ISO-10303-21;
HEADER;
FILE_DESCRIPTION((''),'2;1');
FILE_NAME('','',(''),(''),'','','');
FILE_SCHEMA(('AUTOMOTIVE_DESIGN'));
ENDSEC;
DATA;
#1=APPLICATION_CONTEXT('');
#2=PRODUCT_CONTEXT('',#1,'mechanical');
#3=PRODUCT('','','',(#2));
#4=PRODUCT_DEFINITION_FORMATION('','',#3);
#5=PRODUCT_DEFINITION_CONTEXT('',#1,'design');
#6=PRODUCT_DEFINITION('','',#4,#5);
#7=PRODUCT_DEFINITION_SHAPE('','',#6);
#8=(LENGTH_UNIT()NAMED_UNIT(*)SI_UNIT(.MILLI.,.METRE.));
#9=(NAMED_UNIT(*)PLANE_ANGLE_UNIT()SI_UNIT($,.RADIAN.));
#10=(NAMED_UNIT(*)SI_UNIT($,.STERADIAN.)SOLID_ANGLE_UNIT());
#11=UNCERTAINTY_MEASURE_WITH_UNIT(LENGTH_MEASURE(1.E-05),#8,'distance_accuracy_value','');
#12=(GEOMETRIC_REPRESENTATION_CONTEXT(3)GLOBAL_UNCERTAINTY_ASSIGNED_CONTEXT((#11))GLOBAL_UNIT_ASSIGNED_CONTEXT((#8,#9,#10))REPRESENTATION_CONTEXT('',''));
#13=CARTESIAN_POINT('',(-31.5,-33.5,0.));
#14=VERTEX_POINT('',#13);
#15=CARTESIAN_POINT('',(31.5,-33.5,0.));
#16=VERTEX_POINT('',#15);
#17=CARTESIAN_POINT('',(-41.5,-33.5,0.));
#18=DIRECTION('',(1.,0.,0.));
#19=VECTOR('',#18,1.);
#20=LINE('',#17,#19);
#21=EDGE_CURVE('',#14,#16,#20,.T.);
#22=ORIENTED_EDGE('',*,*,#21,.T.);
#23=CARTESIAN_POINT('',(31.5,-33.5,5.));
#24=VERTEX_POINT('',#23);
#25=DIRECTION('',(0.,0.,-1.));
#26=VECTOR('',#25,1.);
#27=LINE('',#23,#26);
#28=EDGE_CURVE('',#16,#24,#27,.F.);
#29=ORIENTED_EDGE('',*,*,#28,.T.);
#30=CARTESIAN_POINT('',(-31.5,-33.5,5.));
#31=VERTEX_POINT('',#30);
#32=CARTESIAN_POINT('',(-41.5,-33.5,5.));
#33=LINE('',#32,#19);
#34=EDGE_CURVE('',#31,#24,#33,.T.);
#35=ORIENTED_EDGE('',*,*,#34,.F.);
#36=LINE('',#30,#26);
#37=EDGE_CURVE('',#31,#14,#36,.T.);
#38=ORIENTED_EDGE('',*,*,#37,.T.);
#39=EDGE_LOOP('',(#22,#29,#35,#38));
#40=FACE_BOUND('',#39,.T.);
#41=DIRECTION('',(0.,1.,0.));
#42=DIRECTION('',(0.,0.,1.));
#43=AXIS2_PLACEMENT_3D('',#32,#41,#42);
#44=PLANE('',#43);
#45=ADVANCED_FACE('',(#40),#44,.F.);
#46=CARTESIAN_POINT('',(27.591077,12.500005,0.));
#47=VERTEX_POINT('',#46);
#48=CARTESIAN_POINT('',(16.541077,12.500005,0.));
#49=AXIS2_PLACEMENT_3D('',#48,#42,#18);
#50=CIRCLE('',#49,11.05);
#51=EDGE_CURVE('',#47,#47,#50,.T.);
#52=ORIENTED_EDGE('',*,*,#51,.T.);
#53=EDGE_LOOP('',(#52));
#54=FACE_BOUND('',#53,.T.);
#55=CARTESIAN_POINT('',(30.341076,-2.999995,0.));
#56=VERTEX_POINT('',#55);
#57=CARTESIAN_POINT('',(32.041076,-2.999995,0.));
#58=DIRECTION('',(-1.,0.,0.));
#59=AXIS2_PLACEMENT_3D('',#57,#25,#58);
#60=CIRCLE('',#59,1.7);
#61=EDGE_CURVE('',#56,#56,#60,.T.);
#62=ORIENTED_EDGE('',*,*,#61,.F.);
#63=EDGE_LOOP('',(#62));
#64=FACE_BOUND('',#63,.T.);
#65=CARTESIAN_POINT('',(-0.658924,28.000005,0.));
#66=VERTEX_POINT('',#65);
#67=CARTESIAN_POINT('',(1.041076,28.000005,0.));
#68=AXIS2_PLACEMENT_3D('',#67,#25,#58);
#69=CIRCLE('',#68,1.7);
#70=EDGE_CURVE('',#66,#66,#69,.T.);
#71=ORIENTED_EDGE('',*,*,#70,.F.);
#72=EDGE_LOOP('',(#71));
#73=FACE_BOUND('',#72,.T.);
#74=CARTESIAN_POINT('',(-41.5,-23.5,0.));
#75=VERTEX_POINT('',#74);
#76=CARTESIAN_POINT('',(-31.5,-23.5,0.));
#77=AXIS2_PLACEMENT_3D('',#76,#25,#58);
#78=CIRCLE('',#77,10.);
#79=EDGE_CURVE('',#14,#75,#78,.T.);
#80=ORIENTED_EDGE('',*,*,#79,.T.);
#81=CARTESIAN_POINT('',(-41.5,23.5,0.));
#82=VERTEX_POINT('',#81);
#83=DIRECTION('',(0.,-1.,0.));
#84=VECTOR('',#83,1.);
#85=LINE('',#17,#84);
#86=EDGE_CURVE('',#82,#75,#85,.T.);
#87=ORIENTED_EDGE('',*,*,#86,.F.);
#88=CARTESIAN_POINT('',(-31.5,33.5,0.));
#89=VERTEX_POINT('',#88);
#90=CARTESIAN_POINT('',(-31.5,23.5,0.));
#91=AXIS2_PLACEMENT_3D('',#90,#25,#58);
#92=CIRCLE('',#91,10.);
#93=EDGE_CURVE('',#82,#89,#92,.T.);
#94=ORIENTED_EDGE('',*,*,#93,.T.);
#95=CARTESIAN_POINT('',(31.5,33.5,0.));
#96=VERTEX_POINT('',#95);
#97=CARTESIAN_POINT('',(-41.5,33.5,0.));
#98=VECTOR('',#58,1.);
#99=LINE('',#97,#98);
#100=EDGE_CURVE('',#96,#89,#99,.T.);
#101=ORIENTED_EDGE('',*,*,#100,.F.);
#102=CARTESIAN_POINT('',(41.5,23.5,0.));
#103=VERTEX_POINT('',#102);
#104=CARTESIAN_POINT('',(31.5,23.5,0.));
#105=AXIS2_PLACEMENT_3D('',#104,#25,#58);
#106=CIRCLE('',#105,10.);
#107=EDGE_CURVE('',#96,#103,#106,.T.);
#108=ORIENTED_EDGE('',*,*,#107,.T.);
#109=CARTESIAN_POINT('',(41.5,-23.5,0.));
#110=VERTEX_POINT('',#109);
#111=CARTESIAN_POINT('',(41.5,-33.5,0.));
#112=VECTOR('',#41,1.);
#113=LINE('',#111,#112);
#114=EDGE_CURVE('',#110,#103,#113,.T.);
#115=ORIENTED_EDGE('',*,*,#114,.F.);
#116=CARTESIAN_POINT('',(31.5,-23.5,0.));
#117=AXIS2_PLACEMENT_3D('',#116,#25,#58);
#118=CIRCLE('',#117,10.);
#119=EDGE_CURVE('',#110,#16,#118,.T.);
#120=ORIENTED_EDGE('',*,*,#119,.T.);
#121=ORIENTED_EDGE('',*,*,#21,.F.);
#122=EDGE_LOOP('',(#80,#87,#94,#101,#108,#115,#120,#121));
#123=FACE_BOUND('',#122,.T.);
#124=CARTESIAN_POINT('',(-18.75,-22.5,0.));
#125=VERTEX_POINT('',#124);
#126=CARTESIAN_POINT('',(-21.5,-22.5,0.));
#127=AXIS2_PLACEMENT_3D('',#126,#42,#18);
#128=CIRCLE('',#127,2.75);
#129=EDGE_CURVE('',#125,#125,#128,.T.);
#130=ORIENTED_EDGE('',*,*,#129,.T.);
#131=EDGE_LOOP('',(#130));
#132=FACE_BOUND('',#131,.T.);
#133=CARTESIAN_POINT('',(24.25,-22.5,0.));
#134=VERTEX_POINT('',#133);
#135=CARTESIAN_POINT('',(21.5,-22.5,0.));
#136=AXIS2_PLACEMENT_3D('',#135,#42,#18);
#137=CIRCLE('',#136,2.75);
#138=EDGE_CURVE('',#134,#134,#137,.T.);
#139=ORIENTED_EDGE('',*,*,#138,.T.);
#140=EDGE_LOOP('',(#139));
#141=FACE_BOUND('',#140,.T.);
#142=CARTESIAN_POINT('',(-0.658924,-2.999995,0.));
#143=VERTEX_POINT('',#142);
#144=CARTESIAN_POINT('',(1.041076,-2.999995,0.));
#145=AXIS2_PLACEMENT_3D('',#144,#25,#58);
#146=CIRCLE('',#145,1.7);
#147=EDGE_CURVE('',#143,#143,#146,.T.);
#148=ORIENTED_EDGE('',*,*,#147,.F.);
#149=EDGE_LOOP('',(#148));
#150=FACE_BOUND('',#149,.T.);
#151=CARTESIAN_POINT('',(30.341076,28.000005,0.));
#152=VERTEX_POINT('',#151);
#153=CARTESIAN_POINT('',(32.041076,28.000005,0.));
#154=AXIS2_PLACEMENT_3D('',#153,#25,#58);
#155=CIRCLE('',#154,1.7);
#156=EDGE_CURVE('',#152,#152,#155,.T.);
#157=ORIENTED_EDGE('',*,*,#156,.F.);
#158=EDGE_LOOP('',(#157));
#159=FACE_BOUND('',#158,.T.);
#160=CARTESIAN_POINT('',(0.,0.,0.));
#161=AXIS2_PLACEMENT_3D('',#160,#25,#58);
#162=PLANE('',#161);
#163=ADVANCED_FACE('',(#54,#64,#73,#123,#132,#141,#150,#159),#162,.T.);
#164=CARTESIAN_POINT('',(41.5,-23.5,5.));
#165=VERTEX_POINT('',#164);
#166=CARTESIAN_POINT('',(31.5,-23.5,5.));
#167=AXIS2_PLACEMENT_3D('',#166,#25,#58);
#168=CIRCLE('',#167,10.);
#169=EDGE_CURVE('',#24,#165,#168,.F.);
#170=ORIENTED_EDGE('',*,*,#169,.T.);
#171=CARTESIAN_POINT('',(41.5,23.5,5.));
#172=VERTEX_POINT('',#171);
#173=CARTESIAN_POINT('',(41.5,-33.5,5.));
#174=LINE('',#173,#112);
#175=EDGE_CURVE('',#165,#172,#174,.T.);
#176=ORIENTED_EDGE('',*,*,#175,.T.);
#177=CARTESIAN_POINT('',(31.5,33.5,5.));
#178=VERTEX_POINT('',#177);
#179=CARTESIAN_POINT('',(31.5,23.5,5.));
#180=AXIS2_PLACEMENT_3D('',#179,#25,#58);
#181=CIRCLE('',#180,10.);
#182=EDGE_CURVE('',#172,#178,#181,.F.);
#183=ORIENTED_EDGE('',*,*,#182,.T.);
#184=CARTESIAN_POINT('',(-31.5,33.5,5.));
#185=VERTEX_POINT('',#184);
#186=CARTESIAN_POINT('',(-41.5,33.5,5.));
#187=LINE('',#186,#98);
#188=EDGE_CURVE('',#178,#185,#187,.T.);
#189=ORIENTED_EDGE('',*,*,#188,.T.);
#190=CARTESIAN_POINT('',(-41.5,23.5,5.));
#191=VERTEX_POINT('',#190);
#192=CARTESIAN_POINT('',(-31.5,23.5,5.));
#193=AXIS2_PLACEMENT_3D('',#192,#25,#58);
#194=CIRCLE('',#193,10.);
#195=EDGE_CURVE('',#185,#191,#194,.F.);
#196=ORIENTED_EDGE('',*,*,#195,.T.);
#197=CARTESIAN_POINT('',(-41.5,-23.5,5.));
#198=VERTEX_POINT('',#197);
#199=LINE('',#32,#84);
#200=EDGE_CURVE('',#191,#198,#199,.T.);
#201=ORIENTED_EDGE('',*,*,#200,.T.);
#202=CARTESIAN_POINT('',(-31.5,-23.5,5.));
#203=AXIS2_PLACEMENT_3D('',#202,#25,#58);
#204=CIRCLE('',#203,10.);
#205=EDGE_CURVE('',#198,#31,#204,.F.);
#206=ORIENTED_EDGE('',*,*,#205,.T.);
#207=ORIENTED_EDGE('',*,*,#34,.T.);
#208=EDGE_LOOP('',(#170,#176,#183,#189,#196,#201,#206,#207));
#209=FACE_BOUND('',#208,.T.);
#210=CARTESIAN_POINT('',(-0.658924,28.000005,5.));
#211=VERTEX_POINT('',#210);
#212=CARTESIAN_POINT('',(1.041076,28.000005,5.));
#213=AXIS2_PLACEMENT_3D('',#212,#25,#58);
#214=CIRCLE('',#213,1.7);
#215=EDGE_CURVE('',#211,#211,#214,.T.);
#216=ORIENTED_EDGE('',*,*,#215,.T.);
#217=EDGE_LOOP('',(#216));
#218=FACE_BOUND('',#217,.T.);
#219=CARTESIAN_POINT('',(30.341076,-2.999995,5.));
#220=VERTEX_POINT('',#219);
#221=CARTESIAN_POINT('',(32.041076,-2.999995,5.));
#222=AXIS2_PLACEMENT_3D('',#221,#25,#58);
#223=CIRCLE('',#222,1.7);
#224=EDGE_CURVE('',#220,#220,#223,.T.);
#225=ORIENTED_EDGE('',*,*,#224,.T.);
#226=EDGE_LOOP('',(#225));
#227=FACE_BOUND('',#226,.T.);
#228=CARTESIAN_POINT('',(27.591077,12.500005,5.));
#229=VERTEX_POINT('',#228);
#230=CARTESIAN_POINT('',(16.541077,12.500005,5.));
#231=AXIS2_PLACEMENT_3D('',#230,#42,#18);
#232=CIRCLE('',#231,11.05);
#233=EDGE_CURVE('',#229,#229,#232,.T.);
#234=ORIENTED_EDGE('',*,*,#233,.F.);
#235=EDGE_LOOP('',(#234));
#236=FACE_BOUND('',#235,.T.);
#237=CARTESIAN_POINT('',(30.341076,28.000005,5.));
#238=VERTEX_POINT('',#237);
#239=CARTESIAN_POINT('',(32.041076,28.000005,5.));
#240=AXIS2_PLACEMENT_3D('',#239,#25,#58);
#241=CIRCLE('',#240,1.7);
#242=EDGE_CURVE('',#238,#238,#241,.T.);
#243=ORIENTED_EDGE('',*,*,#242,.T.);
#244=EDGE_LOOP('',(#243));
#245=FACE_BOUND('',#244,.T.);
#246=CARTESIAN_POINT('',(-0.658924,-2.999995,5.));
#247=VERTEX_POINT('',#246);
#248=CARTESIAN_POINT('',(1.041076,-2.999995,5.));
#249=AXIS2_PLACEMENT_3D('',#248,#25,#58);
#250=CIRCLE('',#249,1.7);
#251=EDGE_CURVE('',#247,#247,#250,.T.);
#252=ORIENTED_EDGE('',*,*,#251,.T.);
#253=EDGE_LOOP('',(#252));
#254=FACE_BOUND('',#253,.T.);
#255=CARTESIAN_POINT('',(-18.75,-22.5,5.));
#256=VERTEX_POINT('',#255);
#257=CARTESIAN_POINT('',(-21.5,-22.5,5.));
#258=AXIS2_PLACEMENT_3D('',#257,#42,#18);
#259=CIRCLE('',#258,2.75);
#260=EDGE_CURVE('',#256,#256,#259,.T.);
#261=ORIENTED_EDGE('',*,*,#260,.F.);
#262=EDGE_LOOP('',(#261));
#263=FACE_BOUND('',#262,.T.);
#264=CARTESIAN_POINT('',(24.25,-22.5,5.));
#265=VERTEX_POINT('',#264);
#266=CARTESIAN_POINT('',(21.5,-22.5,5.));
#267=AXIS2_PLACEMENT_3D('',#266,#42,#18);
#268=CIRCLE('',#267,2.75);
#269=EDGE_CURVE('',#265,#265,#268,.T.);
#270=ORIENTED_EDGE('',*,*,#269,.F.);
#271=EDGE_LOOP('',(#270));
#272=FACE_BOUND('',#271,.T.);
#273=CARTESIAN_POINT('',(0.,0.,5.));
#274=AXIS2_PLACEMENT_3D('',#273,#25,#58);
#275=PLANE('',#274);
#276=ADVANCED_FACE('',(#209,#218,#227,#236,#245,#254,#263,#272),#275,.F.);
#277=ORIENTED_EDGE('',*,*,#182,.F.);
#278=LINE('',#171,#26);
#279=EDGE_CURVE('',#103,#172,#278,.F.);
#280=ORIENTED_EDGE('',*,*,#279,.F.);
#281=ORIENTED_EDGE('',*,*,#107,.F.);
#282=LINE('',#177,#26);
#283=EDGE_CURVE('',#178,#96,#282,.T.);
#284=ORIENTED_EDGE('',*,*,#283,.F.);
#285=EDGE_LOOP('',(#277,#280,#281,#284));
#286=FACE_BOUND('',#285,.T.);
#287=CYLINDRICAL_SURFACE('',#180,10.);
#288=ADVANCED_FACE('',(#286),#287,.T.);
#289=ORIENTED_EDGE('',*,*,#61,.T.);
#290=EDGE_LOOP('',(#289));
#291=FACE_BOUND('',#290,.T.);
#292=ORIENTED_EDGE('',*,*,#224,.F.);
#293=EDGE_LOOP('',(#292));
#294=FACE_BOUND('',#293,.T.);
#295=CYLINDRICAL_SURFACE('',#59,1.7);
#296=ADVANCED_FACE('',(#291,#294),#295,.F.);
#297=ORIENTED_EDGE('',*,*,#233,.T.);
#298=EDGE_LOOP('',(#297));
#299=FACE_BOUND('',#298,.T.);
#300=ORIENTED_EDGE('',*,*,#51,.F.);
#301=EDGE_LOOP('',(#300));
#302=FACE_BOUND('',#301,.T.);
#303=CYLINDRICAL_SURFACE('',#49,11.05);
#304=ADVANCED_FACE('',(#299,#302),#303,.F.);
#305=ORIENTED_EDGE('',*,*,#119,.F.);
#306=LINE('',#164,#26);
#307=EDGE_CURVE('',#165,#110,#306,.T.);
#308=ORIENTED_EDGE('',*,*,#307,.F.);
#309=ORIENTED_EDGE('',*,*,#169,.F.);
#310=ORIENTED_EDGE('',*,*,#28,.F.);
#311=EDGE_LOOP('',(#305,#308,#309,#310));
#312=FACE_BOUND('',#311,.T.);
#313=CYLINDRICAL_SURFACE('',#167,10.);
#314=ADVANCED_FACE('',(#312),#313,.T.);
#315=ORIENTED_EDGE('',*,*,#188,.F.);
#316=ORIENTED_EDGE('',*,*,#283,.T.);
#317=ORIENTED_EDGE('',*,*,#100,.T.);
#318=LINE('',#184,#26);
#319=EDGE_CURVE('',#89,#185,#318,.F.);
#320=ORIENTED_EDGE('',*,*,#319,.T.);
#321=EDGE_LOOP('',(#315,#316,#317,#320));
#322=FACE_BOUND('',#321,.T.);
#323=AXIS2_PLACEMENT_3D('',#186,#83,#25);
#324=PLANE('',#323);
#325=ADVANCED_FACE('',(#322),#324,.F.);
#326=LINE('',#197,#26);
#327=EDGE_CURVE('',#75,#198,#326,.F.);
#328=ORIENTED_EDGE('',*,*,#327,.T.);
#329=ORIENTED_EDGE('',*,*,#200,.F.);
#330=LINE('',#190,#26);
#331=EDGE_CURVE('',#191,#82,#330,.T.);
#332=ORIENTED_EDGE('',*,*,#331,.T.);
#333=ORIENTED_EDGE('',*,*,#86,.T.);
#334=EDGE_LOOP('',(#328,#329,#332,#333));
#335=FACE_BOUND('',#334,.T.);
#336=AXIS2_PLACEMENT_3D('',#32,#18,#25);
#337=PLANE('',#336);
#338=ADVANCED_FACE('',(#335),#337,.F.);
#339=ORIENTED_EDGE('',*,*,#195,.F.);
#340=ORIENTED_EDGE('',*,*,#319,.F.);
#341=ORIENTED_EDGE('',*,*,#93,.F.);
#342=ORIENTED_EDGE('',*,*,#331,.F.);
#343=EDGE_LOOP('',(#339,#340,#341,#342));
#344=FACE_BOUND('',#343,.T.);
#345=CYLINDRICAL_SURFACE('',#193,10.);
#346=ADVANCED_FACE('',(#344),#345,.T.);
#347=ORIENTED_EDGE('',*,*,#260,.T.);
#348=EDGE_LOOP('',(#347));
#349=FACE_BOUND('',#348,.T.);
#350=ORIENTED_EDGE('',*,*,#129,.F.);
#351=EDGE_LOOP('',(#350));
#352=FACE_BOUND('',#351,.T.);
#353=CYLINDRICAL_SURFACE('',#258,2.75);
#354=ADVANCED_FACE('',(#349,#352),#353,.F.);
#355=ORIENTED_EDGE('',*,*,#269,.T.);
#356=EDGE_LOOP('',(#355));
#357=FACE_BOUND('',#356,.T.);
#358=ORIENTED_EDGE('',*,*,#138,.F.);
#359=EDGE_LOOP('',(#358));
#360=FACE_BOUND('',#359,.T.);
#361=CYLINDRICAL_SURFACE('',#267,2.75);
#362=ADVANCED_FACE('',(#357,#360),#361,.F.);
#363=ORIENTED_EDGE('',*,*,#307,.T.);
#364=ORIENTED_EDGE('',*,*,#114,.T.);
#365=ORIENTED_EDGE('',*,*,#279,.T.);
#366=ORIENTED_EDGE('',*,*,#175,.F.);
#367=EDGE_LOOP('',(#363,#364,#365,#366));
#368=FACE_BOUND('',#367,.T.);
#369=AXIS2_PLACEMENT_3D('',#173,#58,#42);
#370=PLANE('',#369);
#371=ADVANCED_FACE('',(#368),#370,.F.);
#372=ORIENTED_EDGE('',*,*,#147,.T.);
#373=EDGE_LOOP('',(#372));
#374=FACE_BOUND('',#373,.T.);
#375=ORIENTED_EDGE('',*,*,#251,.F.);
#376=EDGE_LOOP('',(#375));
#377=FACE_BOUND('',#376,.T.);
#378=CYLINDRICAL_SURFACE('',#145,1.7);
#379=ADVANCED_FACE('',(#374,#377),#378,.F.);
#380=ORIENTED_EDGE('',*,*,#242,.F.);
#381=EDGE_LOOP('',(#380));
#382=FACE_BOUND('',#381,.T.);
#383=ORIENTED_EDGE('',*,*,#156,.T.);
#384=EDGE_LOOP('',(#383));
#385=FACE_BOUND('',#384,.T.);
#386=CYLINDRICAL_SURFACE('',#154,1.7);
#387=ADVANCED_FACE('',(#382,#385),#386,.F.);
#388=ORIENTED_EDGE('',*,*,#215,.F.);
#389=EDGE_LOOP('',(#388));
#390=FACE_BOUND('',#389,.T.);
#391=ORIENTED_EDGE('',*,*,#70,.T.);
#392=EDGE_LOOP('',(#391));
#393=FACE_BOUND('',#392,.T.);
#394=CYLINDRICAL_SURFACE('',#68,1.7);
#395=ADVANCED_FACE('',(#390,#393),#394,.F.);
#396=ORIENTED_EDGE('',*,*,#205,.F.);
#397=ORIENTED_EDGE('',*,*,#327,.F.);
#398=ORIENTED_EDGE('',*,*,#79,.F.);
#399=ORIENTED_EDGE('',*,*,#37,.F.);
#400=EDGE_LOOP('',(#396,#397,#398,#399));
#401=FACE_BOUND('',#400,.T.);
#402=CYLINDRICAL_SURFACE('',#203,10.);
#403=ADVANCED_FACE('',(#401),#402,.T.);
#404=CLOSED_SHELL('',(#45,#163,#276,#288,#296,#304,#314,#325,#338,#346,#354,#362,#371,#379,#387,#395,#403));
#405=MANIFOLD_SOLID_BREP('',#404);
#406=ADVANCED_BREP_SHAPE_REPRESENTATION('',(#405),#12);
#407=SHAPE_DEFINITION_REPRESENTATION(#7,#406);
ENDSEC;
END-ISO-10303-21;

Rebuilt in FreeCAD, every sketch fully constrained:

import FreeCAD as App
import Part
import Sketcher

V = App.Vector
Q = App.Units.Quantity


def edges_at(feature, points):
    """Names of the edges that pass closest to the given points."""
    edges = feature.Shape.Edges
    near = lambda p: min(range(len(edges)), key=lambda i: edges[i].distToShape(Part.Vertex(*p))[0])
    return sorted({f"Edge{near(p) + 1}" for p in points})

doc = App.newDocument("Part")
params = doc.addObject("Spreadsheet::Sheet", "Params")
for row, (alias, value) in enumerate([
    ("sketch1_width", "83 mm"),
    ("sketch1_height", "67 mm"),
    ("pad1_length", "5 mm"),
    ("sketch2_diameter", "5.5 mm"),
    ("hole_diameter", "5.5 mm"),
    ("sketch3_diameter", "3.4 mm"),
    ("hole2_diameter", "3.4 mm"),
    ("sketch4_diameter", "22.1 mm"),
    ("fillet_radius", "10 mm"),
], start=1):
    params.set(f"A{row}", alias)
    params.set(f"B{row}", "=" + value)
    params.setAlias(f"B{row}", alias)

body = doc.addObject("PartDesign::Body", "Body")

# Sketch on XY plane
sketch1 = doc.addObject("Sketcher::SketchObject", "Sketch")
body.addObject(sketch1)
sketch1.AttachmentSupport = (doc.XY_Plane, [""])
sketch1.MapMode = "FlatFace"
sketch1.addGeometry([
    Part.LineSegment(V(-41.5, 33.5, 0), V(-41.5, -33.5, 0)),
    Part.LineSegment(V(-41.5, -33.5, 0), V(41.5, -33.5, 0)),
    Part.LineSegment(V(41.5, -33.5, 0), V(41.5, 33.5, 0)),
    Part.LineSegment(V(41.5, 33.5, 0), V(-41.5, 33.5, 0)),
], False)
sketch1.addConstraint([
    Sketcher.Constraint("Coincident", 0, 2, 1, 1),
    Sketcher.Constraint("Coincident", 1, 2, 2, 1),
    Sketcher.Constraint("Coincident", 2, 2, 3, 1),
    Sketcher.Constraint("Coincident", 3, 2, 0, 1),
    Sketcher.Constraint("Vertical", 0),
    Sketcher.Constraint("Horizontal", 1),
    Sketcher.Constraint("Vertical", 2),
    Sketcher.Constraint("Horizontal", 3),
    Sketcher.Constraint("Symmetric", 0, 2, 2, 2, -1, 1),
    Sketcher.Constraint("DistanceX", 1, 1, 1, 2, Q("83 mm")),
    Sketcher.Constraint("DistanceY", 0, 2, 0, 1, Q("67 mm")),
])
sketch1.setExpression("Constraints[9]", "Params.sketch1_width")
sketch1.setExpression("Constraints[10]", "Params.sketch1_height")
pad1 = doc.addObject("PartDesign::Pad", "Pad")
body.addObject(pad1)
pad1.Profile = sketch1
pad1.setExpression("Length", "Params.pad1_length")

# Sketch on XY plane
sketch2 = doc.addObject("Sketcher::SketchObject", "Sketch001")
body.addObject(sketch2)
sketch2.AttachmentSupport = (doc.XY_Plane, [""])
sketch2.MapMode = "FlatFace"
sketch2.AttachmentOffset = App.Placement(V(0, 0, 5), App.Rotation())
sketch2.addGeometry([
    Part.Circle(V(21.5, -22.5, 0), V(0, 0, 1), 2.75),
    Part.Circle(V(-21.5, -22.5, 0), V(0, 0, 1), 2.75),
], False)
sketch2.addConstraint([
    Sketcher.Constraint("Equal", 0, 1),
    Sketcher.Constraint("Symmetric", 0, 3, 1, 3, -2),
    Sketcher.Constraint("Diameter", 0, Q("5.5 mm")),
    Sketcher.Constraint("DistanceX", 1, 3, 0, 3, Q("43 mm")),
    Sketcher.Constraint("DistanceY", 0, 3, -1, 1, Q("22.5 mm")),
])
sketch2.setExpression("Constraints[2]", "Params.sketch2_diameter")
doc.recompute()
hole = doc.addObject("PartDesign::Hole", "Hole")
body.addObject(hole)
hole.Profile = sketch2
hole.ThreadType = "None"
hole.setExpression("Diameter", "Params.hole_diameter")
hole.DepthType = "ThroughAll"

# Sketch on XY plane
sketch3 = doc.addObject("Sketcher::SketchObject", "Sketch002")
body.addObject(sketch3)
sketch3.AttachmentSupport = (doc.XY_Plane, [""])
sketch3.MapMode = "FlatFace"
sketch3.addGeometry([
    Part.Circle(V(32.041076, 28.000005, 0), V(0, 0, 1), 1.7),
    Part.Circle(V(1.041076, 28.000005, 0), V(0, 0, 1), 1.7),
    Part.Circle(V(1.041076, -2.999995, 0), V(0, 0, 1), 1.7),
    Part.Circle(V(32.041076, -2.999995, 0), V(0, 0, 1), 1.7),
], False)
sketch3.addConstraint([
    Sketcher.Constraint("Equal", 0, 1),
    Sketcher.Constraint("Equal", 1, 2),
    Sketcher.Constraint("Equal", 2, 3),
    Sketcher.Constraint("Horizontal", 0, 3, 1, 3),
    Sketcher.Constraint("Horizontal", 2, 3, 3, 3),
    Sketcher.Constraint("Vertical", 1, 3, 2, 3),
    Sketcher.Constraint("Vertical", 0, 3, 3, 3),
    Sketcher.Constraint("Diameter", 0, Q("3.4 mm")),
    Sketcher.Constraint("DistanceX", 1, 3, 0, 3, Q("31 mm")),
    Sketcher.Constraint("DistanceY", 2, 3, 1, 3, Q("31 mm")),
    Sketcher.Constraint("DistanceX", -1, 1, 0, 3, Q("32.041076 mm")),
    Sketcher.Constraint("DistanceY", -1, 1, 0, 3, Q("28.000005 mm")),
])
sketch3.setExpression("Constraints[7]", "Params.sketch3_diameter")
doc.recompute()
hole2 = doc.addObject("PartDesign::Hole", "Hole001")
body.addObject(hole2)
hole2.Profile = sketch3
hole2.ThreadType = "None"
hole2.setExpression("Diameter", "Params.hole2_diameter")
hole2.DepthType = "ThroughAll"
hole2.Reversed = True

# Sketch on XY plane
sketch4 = doc.addObject("Sketcher::SketchObject", "Sketch003")
body.addObject(sketch4)
sketch4.AttachmentSupport = (doc.XY_Plane, [""])
sketch4.MapMode = "FlatFace"
sketch4.AttachmentOffset = App.Placement(V(0, 0, 5), App.Rotation())
sketch4.addGeometry(Part.Circle(V(16.541077, 12.500005, 0), V(0, 0, 1), 11.05), False)
sketch4.addConstraint([
    Sketcher.Constraint("Diameter", 0, Q("22.1 mm")),
    Sketcher.Constraint("DistanceX", -1, 1, 0, 3, Q("16.541077 mm")),
    Sketcher.Constraint("DistanceY", -1, 1, 0, 3, Q("12.500005 mm")),
])
sketch4.setExpression("Constraints[0]", "Params.sketch4_diameter")
pocket1 = doc.addObject("PartDesign::Pocket", "Pocket")
body.addObject(pocket1)
pocket1.Profile = sketch4
pocket1.Type = "ThroughAll"
doc.recompute()

fillet = doc.addObject("PartDesign::Fillet", "Fillet")
body.addObject(fillet)
fillet.Base = (pocket1, edges_at(pocket1, [
    (41.5, -33.5, 2.5),
    (-41.5, -33.5, 2.5),
    (-41.5, 33.5, 2.5),
    (41.5, 33.5, 2.5),
]))
fillet.setExpression("Radius", "Params.fillet_radius")

doc.recompute()
